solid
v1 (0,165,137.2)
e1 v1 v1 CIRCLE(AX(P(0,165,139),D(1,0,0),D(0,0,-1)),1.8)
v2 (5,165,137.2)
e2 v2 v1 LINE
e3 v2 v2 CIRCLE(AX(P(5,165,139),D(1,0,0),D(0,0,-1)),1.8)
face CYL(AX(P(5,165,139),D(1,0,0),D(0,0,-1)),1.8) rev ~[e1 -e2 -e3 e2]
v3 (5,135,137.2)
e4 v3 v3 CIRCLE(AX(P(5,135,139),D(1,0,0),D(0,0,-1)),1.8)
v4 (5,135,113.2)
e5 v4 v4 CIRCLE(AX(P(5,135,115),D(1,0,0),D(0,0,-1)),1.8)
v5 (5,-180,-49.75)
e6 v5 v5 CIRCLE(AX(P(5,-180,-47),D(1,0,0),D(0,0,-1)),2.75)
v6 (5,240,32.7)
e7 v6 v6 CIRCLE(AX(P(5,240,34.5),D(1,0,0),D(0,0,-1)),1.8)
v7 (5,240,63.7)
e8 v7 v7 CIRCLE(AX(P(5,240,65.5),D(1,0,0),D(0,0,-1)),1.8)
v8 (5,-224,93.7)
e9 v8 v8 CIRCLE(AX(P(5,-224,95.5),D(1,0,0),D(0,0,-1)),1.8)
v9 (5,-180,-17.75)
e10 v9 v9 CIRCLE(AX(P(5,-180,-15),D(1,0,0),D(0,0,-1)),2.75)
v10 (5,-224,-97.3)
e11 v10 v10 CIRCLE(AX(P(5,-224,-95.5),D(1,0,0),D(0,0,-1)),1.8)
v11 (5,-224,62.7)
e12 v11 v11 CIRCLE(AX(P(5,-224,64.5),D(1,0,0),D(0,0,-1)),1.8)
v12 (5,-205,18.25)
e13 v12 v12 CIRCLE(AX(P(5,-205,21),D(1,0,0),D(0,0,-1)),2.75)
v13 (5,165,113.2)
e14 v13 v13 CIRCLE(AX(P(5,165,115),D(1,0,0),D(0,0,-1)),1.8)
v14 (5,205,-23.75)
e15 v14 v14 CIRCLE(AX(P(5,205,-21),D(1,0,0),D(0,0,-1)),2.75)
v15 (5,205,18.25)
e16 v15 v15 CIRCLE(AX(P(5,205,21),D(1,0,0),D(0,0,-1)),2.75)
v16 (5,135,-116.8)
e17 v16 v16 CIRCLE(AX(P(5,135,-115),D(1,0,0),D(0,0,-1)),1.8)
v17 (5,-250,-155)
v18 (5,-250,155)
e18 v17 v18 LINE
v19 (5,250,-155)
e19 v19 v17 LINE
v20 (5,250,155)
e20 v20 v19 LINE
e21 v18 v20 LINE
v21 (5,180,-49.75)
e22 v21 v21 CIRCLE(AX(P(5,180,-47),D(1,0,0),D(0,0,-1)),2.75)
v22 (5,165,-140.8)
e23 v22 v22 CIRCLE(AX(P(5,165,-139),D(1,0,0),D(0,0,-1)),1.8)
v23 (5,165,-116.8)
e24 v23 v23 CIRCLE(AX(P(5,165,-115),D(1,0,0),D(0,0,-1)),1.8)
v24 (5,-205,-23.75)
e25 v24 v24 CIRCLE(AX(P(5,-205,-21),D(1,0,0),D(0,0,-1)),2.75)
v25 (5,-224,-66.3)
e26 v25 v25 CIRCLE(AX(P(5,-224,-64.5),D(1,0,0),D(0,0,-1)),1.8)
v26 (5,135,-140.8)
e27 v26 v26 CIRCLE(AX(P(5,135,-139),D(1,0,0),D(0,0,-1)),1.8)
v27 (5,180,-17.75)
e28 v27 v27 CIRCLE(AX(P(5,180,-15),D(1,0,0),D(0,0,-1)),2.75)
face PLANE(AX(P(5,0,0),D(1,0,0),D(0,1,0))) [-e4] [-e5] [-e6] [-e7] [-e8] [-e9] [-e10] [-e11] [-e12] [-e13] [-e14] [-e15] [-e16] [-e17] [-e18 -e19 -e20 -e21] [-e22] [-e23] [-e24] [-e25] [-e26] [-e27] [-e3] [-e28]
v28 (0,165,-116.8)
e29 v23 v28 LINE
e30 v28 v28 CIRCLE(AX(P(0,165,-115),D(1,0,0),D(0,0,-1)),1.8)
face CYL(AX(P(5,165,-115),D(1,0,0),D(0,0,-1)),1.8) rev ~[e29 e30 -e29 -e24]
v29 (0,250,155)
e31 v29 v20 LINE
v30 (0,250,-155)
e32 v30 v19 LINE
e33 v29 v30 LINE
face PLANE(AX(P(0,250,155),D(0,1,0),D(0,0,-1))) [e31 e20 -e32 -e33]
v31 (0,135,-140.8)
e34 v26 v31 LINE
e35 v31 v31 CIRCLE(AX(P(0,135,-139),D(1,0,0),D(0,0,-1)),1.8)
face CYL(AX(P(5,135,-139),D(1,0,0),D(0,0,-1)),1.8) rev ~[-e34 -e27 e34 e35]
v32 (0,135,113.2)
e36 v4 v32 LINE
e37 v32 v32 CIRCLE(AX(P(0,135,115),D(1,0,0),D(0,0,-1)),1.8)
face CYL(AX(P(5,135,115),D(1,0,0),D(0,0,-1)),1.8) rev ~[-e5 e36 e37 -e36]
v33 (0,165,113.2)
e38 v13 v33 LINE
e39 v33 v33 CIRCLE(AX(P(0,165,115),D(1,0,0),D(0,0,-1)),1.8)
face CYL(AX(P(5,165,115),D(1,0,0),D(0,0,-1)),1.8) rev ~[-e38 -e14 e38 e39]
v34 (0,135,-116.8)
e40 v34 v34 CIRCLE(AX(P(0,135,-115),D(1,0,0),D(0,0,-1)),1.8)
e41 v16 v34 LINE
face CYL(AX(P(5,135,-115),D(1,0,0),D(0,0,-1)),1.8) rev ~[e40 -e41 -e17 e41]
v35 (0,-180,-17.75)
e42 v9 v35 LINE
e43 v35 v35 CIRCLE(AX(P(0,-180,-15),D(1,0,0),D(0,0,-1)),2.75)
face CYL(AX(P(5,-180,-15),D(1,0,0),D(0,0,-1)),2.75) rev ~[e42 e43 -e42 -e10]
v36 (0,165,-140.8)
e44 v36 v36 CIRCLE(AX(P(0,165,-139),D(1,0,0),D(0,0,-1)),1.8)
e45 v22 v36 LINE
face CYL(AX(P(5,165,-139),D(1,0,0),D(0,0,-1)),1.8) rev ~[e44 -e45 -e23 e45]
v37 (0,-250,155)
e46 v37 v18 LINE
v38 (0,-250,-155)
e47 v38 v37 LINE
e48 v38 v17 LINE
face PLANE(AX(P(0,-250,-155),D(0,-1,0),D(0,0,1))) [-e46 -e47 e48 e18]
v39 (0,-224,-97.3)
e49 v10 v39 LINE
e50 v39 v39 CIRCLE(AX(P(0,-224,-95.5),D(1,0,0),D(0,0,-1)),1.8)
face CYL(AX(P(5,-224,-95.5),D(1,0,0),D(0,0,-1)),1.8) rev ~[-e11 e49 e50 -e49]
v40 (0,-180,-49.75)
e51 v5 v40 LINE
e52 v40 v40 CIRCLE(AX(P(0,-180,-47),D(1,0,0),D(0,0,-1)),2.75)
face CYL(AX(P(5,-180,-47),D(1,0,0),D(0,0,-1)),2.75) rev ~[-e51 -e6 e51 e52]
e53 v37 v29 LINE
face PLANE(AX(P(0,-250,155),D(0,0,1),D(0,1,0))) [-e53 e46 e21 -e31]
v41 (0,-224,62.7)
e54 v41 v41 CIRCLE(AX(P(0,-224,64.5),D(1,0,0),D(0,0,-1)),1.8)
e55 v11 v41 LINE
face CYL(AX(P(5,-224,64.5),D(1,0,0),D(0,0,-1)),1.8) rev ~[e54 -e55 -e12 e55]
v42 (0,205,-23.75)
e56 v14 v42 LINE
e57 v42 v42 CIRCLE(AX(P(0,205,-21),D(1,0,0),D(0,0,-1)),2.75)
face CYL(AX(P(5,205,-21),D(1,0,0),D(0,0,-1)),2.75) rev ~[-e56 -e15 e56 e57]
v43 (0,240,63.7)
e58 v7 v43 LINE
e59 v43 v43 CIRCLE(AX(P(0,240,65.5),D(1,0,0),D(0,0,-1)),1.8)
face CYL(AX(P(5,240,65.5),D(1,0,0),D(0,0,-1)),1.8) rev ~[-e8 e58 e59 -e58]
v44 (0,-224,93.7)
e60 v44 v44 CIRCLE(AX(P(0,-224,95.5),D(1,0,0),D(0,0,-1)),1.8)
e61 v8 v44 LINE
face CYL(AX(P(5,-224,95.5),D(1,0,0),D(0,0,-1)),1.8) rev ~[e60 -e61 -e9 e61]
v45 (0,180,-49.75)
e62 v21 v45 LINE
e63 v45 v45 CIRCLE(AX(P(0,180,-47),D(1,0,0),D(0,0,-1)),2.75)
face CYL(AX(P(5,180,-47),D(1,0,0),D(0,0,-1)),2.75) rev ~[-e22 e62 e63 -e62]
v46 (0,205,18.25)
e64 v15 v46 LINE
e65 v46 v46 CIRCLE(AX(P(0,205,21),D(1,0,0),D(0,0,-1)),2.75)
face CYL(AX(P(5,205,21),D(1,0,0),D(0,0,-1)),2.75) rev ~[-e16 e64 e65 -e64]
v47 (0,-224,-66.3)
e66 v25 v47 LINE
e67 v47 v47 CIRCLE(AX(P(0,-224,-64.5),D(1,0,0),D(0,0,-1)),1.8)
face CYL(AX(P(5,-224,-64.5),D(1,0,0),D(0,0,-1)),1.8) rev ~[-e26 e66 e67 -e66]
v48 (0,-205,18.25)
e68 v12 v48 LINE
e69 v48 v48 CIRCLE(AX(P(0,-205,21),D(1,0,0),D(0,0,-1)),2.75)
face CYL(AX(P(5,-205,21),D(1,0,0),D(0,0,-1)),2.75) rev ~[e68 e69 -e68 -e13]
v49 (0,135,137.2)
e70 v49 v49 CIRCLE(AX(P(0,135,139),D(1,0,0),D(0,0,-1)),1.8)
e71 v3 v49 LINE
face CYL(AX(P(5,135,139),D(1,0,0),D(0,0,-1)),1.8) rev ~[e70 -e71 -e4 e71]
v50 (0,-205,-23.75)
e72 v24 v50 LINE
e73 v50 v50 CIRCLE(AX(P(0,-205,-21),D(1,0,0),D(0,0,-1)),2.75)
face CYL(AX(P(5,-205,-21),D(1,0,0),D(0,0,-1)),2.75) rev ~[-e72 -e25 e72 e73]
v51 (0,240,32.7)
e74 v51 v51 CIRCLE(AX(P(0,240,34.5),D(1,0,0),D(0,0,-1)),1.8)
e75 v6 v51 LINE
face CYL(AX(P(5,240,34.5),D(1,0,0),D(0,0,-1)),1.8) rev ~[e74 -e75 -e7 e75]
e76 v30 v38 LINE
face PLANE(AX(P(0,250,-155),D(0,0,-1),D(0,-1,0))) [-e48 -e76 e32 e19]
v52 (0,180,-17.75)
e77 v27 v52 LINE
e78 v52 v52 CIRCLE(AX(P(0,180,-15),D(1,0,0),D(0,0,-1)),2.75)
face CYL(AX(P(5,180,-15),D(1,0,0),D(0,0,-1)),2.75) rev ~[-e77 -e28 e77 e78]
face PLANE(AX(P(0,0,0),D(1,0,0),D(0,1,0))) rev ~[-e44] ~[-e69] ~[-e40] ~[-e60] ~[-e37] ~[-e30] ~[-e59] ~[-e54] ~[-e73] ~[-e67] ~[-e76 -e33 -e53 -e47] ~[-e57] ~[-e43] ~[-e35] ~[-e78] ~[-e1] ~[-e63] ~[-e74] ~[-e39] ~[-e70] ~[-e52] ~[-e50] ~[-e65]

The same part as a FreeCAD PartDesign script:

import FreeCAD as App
import Part
import Sketcher

V = App.Vector
Q = App.Units.Quantity


def add_polygon(sketch, points):
    """Adds a closed chain of lines whose ends are joined by coincident constraints."""
    first, n = sketch.GeometryCount, len(points)
    for a, b in zip(points, points[1:] + points[:1]):
        sketch.addGeometry(Part.LineSegment(App.Vector(*a, 0), App.Vector(*b, 0)), False)
    for i in range(n):
        sketch.addConstraint(Sketcher.Constraint("Coincident", first + i, 2, first + (i + 1) % n, 1))

doc = App.newDocument("Part")
body = doc.addObject("PartDesign::Body", "Body")

# Sketch on YZ plane
sketch1 = body.newObject("Sketcher::SketchObject", "Sketch")
sketch1.AttachmentSupport = (doc.getObject("YZ_Plane"), [""])
sketch1.MapMode = "FlatFace"
add_polygon(sketch1, [(-250, -155), (250, -155), (250, 155), (-250, 155)])  # lines 0-3
sketch1.addConstraint([
    Sketcher.Constraint("Horizontal", 0),
    Sketcher.Constraint("Vertical", 1),
    Sketcher.Constraint("Horizontal", 2),
    Sketcher.Constraint("Vertical", 3),
    Sketcher.Constraint("Symmetric", 0, 2, 2, 2, -1, 1),
    Sketcher.Constraint("DistanceX", 0, 1, 0, 2, Q("500 mm")),
    Sketcher.Constraint("DistanceY", 1, 1, 1, 2, Q("310 mm")),
])
pad1 = body.newObject("PartDesign::Pad", "Pad")
pad1.Profile = sketch1
pad1.Length = 5

# Sketch on YZ plane
sketch2 = body.newObject("Sketcher::SketchObject", "Sketch001")
sketch2.AttachmentSupport = (doc.getObject("YZ_Plane"), [""])
sketch2.MapMode = "FlatFace"
sketch2.AttachmentOffset = App.Placement(V(0, 0, 5), App.Rotation())
sketch2.addGeometry(Part.Circle(V(-224, -95.5, 0), V(0, 0, 1), 1.8), False)
sketch2.addConstraint([
    Sketcher.Constraint("Diameter", 0, Q("3.6 mm")),
    Sketcher.Constraint("DistanceX", 0, 3, -1, 1, Q("224 mm")),
    Sketcher.Constraint("DistanceY", 0, 3, -1, 1, Q("95.5 mm")),
])
pocket1 = body.newObject("PartDesign::Pocket", "Pocket")
pocket1.Profile = sketch2
pocket1.Type = "ThroughAll"

# Sketch on YZ plane
sketch3 = body.newObject("Sketcher::SketchObject", "Sketch002")
sketch3.AttachmentSupport = (doc.getObject("YZ_Plane"), [""])
sketch3.MapMode = "FlatFace"
sketch3.AttachmentOffset = App.Placement(V(0, 0, 5), App.Rotation())
sketch3.addGeometry(Part.Circle(V(-224, 95.5, 0), V(0, 0, 1), 1.8), False)
sketch3.addConstraint([
    Sketcher.Constraint("Diameter", 0, Q("3.6 mm")),
    Sketcher.Constraint("DistanceX", 0, 3, -1, 1, Q("224 mm")),
    Sketcher.Constraint("DistanceY", -1, 1, 0, 3, Q("95.5 mm")),
])
pocket2 = body.newObject("PartDesign::Pocket", "Pocket001")
pocket2.Profile = sketch3
pocket2.Type = "ThroughAll"

# Sketch on YZ plane
sketch4 = body.newObject("Sketcher::SketchObject", "Sketch003")
sketch4.AttachmentSupport = (doc.getObject("YZ_Plane"), [""])
sketch4.MapMode = "FlatFace"
sketch4.AttachmentOffset = App.Placement(V(0, 0, 5), App.Rotation())
sketch4.addGeometry(Part.Circle(V(-224, -64.5, 0), V(0, 0, 1), 1.8), False)
sketch4.addConstraint([
    Sketcher.Constraint("Diameter", 0, Q("3.6 mm")),
    Sketcher.Constraint("DistanceX", 0, 3, -1, 1, Q("224 mm")),
    Sketcher.Constraint("DistanceY", 0, 3, -1, 1, Q("64.5 mm")),
])
pocket3 = body.newObject("PartDesign::Pocket", "Pocket002")
pocket3.Profile = sketch4
pocket3.Type = "ThroughAll"

# Sketch on YZ plane
sketch5 = body.newObject("Sketcher::SketchObject", "Sketch004")
sketch5.AttachmentSupport = (doc.getObject("YZ_Plane"), [""])
sketch5.MapMode = "FlatFace"
sketch5.AttachmentOffset = App.Placement(V(0, 0, 5), App.Rotation())
sketch5.addGeometry(Part.Circle(V(-224, 64.5, 0), V(0, 0, 1), 1.8), False)
sketch5.addConstraint([
    Sketcher.Constraint("Diameter", 0, Q("3.6 mm")),
    Sketcher.Constraint("DistanceX", 0, 3, -1, 1, Q("224 mm")),
    Sketcher.Constraint("DistanceY", -1, 1, 0, 3, Q("64.5 mm")),
])
pocket4 = body.newObject("PartDesign::Pocket", "Pocket003")
pocket4.Profile = sketch5
pocket4.Type = "ThroughAll"

# Sketch on YZ plane
sketch6 = body.newObject("Sketcher::SketchObject", "Sketch005")
sketch6.AttachmentSupport = (doc.getObject("YZ_Plane"), [""])
sketch6.MapMode = "FlatFace"
sketch6.AttachmentOffset = App.Placement(V(0, 0, 5), App.Rotation())
sketch6.addGeometry(Part.Circle(V(-205, -21, 0), V(0, 0, 1), 2.75), False)
sketch6.addConstraint([
    Sketcher.Constraint("Diameter", 0, Q("5.5 mm")),
    Sketcher.Constraint("DistanceX", 0, 3, -1, 1, Q("205 mm")),
    Sketcher.Constraint("DistanceY", 0, 3, -1, 1, Q("21 mm")),
])
pocket5 = body.newObject("PartDesign::Pocket", "Pocket004")
pocket5.Profile = sketch6
pocket5.Type = "ThroughAll"

# Sketch on YZ plane
sketch7 = body.newObject("Sketcher::SketchObject", "Sketch006")
sketch7.AttachmentSupport = (doc.getObject("YZ_Plane"), [""])
sketch7.MapMode = "FlatFace"
sketch7.AttachmentOffset = App.Placement(V(0, 0, 5), App.Rotation())
sketch7.addGeometry(Part.Circle(V(-205, 21, 0), V(0, 0, 1), 2.75), False)
sketch7.addConstraint([
    Sketcher.Constraint("Diameter", 0, Q("5.5 mm")),
    Sketcher.Constraint("DistanceX", 0, 3, -1, 1, Q("205 mm")),
    Sketcher.Constraint("DistanceY", -1, 1, 0, 3, Q("21 mm")),
])
pocket6 = body.newObject("PartDesign::Pocket", "Pocket005")
pocket6.Profile = sketch7
pocket6.Type = "ThroughAll"

# Sketch on YZ plane
sketch8 = body.newObject("Sketcher::SketchObject", "Sketch007")
sketch8.AttachmentSupport = (doc.getObject("YZ_Plane"), [""])
sketch8.MapMode = "FlatFace"
sketch8.AttachmentOffset = App.Placement(V(0, 0, 5), App.Rotation())
sketch8.addGeometry(Part.Circle(V(205, -21, 0), V(0, 0, 1), 2.75), False)
sketch8.addConstraint([
    Sketcher.Constraint("Diameter", 0, Q("5.5 mm")),
    Sketcher.Constraint("DistanceX", -1, 1, 0, 3, Q("205 mm")),
    Sketcher.Constraint("DistanceY", 0, 3, -1, 1, Q("21 mm")),
])
pocket7 = body.newObject("PartDesign::Pocket", "Pocket006")
pocket7.Profile = sketch8
pocket7.Type = "ThroughAll"

# Sketch on YZ plane
sketch9 = body.newObject("Sketcher::SketchObject", "Sketch008")
sketch9.AttachmentSupport = (doc.getObject("YZ_Plane"), [""])
sketch9.MapMode = "FlatFace"
sketch9.AttachmentOffset = App.Placement(V(0, 0, 5), App.Rotation())
sketch9.addGeometry(Part.Circle(V(205, 21, 0), V(0, 0, 1), 2.75), False)
sketch9.addConstraint([
    Sketcher.Constraint("Diameter", 0, Q("5.5 mm")),
    Sketcher.Constraint("DistanceX", -1, 1, 0, 3, Q("205 mm")),
    Sketcher.Constraint("DistanceY", -1, 1, 0, 3, Q("21 mm")),
])
pocket8 = body.newObject("PartDesign::Pocket", "Pocket007")
pocket8.Profile = sketch9
pocket8.Type = "ThroughAll"

# Sketch on YZ plane
sketch10 = body.newObject("Sketcher::SketchObject", "Sketch009")
sketch10.AttachmentSupport = (doc.getObject("YZ_Plane"), [""])
sketch10.MapMode = "FlatFace"
sketch10.AttachmentOffset = App.Placement(V(0, 0, 5), App.Rotation())
sketch10.addGeometry(Part.Circle(V(180, -15, 0), V(0, 0, 1), 2.75), False)
sketch10.addConstraint([
    Sketcher.Constraint("Diameter", 0, Q("5.5 mm")),
    Sketcher.Constraint("DistanceX", -1, 1, 0, 3, Q("180 mm")),
    Sketcher.Constraint("DistanceY", 0, 3, -1, 1, Q("15 mm")),
])
pocket9 = body.newObject("PartDesign::Pocket", "Pocket008")
pocket9.Profile = sketch10
pocket9.Type = "ThroughAll"

# Sketch on YZ plane
sketch11 = body.newObject("Sketcher::SketchObject", "Sketch010")
sketch11.AttachmentSupport = (doc.getObject("YZ_Plane"), [""])
sketch11.MapMode = "FlatFace"
sketch11.AttachmentOffset = App.Placement(V(0, 0, 5), App.Rotation())
sketch11.addGeometry(Part.Circle(V(-180, -15, 0), V(0, 0, 1), 2.75), False)
sketch11.addConstraint([
    Sketcher.Constraint("Diameter", 0, Q("5.5 mm")),
    Sketcher.Constraint("DistanceX", 0, 3, -1, 1, Q("180 mm")),
    Sketcher.Constraint("DistanceY", 0, 3, -1, 1, Q("15 mm")),
])
pocket10 = body.newObject("PartDesign::Pocket", "Pocket009")
pocket10.Profile = sketch11
pocket10.Type = "ThroughAll"

# Sketch on YZ plane
sketch12 = body.newObject("Sketcher::SketchObject", "Sketch011")
sketch12.AttachmentSupport = (doc.getObject("YZ_Plane"), [""])
sketch12.MapMode = "FlatFace"
sketch12.AttachmentOffset = App.Placement(V(0, 0, 5), App.Rotation())
sketch12.addGeometry(Part.Circle(V(180, -47, 0), V(0, 0, 1), 2.75), False)
sketch12.addConstraint([
    Sketcher.Constraint("Diameter", 0, Q("5.5 mm")),
    Sketcher.Constraint("DistanceX", -1, 1, 0, 3, Q("180 mm")),
    Sketcher.Constraint("DistanceY", 0, 3, -1, 1, Q("47 mm")),
])
pocket11 = body.newObject("PartDesign::Pocket", "Pocket010")
pocket11.Profile = sketch12
pocket11.Type = "ThroughAll"

# Sketch on YZ plane
sketch13 = body.newObject("Sketcher::SketchObject", "Sketch012")
sketch13.AttachmentSupport = (doc.getObject("YZ_Plane"), [""])
sketch13.MapMode = "FlatFace"
sketch13.AttachmentOffset = App.Placement(V(0, 0, 5), App.Rotation())
sketch13.addGeometry(Part.Circle(V(-180, -47, 0), V(0, 0, 1), 2.75), False)
sketch13.addConstraint([
    Sketcher.Constraint("Diameter", 0, Q("5.5 mm")),
    Sketcher.Constraint("DistanceX", 0, 3, -1, 1, Q("180 mm")),
    Sketcher.Constraint("DistanceY", 0, 3, -1, 1, Q("47 mm")),
])
pocket12 = body.newObject("PartDesign::Pocket", "Pocket011")
pocket12.Profile = sketch13
pocket12.Type = "ThroughAll"

# Sketch on YZ plane
sketch14 = body.newObject("Sketcher::SketchObject", "Sketch013")
sketch14.AttachmentSupport = (doc.getObject("YZ_Plane"), [""])
sketch14.MapMode = "FlatFace"
sketch14.AttachmentOffset = App.Placement(V(0, 0, 5), App.Rotation())
sketch14.addGeometry(Part.Circle(V(165, -139, 0), V(0, 0, 1), 1.8), False)
sketch14.addConstraint([
    Sketcher.Constraint("Diameter", 0, Q("3.6 mm")),
    Sketcher.Constraint("DistanceX", -1, 1, 0, 3, Q("165 mm")),
    Sketcher.Constraint("DistanceY", 0, 3, -1, 1, Q("139 mm")),
])
pocket13 = body.newObject("PartDesign::Pocket", "Pocket012")
pocket13.Profile = sketch14
pocket13.Type = "ThroughAll"

# Sketch on YZ plane
sketch15 = body.newObject("Sketcher::SketchObject", "Sketch014")
sketch15.AttachmentSupport = (doc.getObject("YZ_Plane"), [""])
sketch15.MapMode = "FlatFace"
sketch15.AttachmentOffset = App.Placement(V(0, 0, 5), App.Rotation())
sketch15.addGeometry(Part.Circle(V(165, 139, 0), V(0, 0, 1), 1.8), False)
sketch15.addConstraint([
    Sketcher.Constraint("Diameter", 0, Q("3.6 mm")),
    Sketcher.Constraint("DistanceX", -1, 1, 0, 3, Q("165 mm")),
    Sketcher.Constraint("DistanceY", -1, 1, 0, 3, Q("139 mm")),
])
pocket14 = body.newObject("PartDesign::Pocket", "Pocket013")
pocket14.Profile = sketch15
pocket14.Type = "ThroughAll"

# Sketch on YZ plane
sketch16 = body.newObject("Sketcher::SketchObject", "Sketch015")
sketch16.AttachmentSupport = (doc.getObject("YZ_Plane"), [""])
sketch16.MapMode = "FlatFace"
sketch16.AttachmentOffset = App.Placement(V(0, 0, 5), App.Rotation())
sketch16.addGeometry(Part.Circle(V(135, -139, 0), V(0, 0, 1), 1.8), False)
sketch16.addConstraint([
    Sketcher.Constraint("Diameter", 0, Q("3.6 mm")),
    Sketcher.Constraint("DistanceX", -1, 1, 0, 3, Q("135 mm")),
    Sketcher.Constraint("DistanceY", 0, 3, -1, 1, Q("139 mm")),
])
pocket15 = body.newObject("PartDesign::Pocket", "Pocket014")
pocket15.Profile = sketch16
pocket15.Type = "ThroughAll"

# Sketch on YZ plane
sketch17 = body.newObject("Sketcher::SketchObject", "Sketch016")
sketch17.AttachmentSupport = (doc.getObject("YZ_Plane"), [""])
sketch17.MapMode = "FlatFace"
sketch17.AttachmentOffset = App.Placement(V(0, 0, 5), App.Rotation())
sketch17.addGeometry(Part.Circle(V(135, 139, 0), V(0, 0, 1), 1.8), False)
sketch17.addConstraint([
    Sketcher.Constraint("Diameter", 0, Q("3.6 mm")),
    Sketcher.Constraint("DistanceX", -1, 1, 0, 3, Q("135 mm")),
    Sketcher.Constraint("DistanceY", -1, 1, 0, 3, Q("139 mm")),
])
pocket16 = body.newObject("PartDesign::Pocket", "Pocket015")
pocket16.Profile = sketch17
pocket16.Type = "ThroughAll"

# Sketch on YZ plane
sketch18 = body.newObject("Sketcher::SketchObject", "Sketch017")
sketch18.AttachmentSupport = (doc.getObject("YZ_Plane"), [""])
sketch18.MapMode = "FlatFace"
sketch18.AttachmentOffset = App.Placement(V(0, 0, 5), App.Rotation())
sketch18.addGeometry(Part.Circle(V(165, -115, 0), V(0, 0, 1), 1.8), False)
sketch18.addConstraint([
    Sketcher.Constraint("Diameter", 0, Q("3.6 mm")),
    Sketcher.Constraint("DistanceX", -1, 1, 0, 3, Q("165 mm")),
    Sketcher.Constraint("DistanceY", 0, 3, -1, 1, Q("115 mm")),
])
pocket17 = body.newObject("PartDesign::Pocket", "Pocket016")
pocket17.Profile = sketch18
pocket17.Type = "ThroughAll"

# Sketch on YZ plane
sketch19 = body.newObject("Sketcher::SketchObject", "Sketch018")
sketch19.AttachmentSupport = (doc.getObject("YZ_Plane"), [""])
sketch19.MapMode = "FlatFace"
sketch19.AttachmentOffset = App.Placement(V(0, 0, 5), App.Rotation())
sketch19.addGeometry(Part.Circle(V(135, -115, 0), V(0, 0, 1), 1.8), False)
sketch19.addConstraint([
    Sketcher.Constraint("Diameter", 0, Q("3.6 mm")),
    Sketcher.Constraint("DistanceX", -1, 1, 0, 3, Q("135 mm")),
    Sketcher.Constraint("DistanceY", 0, 3, -1, 1, Q("115 mm")),
])
pocket18 = body.newObject("PartDesign::Pocket", "Pocket017")
pocket18.Profile = sketch19
pocket18.Type = "ThroughAll"

# Sketch on YZ plane
sketch20 = body.newObject("Sketcher::SketchObject", "Sketch019")
sketch20.AttachmentSupport = (doc.getObject("YZ_Plane"), [""])
sketch20.MapMode = "FlatFace"
sketch20.AttachmentOffset = App.Placement(V(0, 0, 5), App.Rotation())
sketch20.addGeometry(Part.Circle(V(135, 115, 0), V(0, 0, 1), 1.8), False)
sketch20.addConstraint([
    Sketcher.Constraint("Diameter", 0, Q("3.6 mm")),
    Sketcher.Constraint("DistanceX", -1, 1, 0, 3, Q("135 mm")),
    Sketcher.Constraint("DistanceY", -1, 1, 0, 3, Q("115 mm")),
])
pocket19 = body.newObject("PartDesign::Pocket", "Pocket018")
pocket19.Profile = sketch20
pocket19.Type = "ThroughAll"

# Sketch on YZ plane
sketch21 = body.newObject("Sketcher::SketchObject", "Sketch020")
sketch21.AttachmentSupport = (doc.getObject("YZ_Plane"), [""])
sketch21.MapMode = "FlatFace"
sketch21.AttachmentOffset = App.Placement(V(0, 0, 5), App.Rotation())
sketch21.addGeometry(Part.Circle(V(165, 115, 0), V(0, 0, 1), 1.8), False)
sketch21.addConstraint([
    Sketcher.Constraint("Diameter", 0, Q("3.6 mm")),
    Sketcher.Constraint("DistanceX", -1, 1, 0, 3, Q("165 mm")),
    Sketcher.Constraint("DistanceY", -1, 1, 0, 3, Q("115 mm")),
])
pocket20 = body.newObject("PartDesign::Pocket", "Pocket019")
pocket20.Profile = sketch21
pocket20.Type = "ThroughAll"

# Sketch on YZ plane
sketch22 = body.newObject("Sketcher::SketchObject", "Sketch021")
sketch22.AttachmentSupport = (doc.getObject("YZ_Plane"), [""])
sketch22.MapMode = "FlatFace"
sketch22.AttachmentOffset = App.Placement(V(0, 0, 5), App.Rotation())
sketch22.addGeometry(Part.Circle(V(240, 65.5, 0), V(0, 0, 1), 1.8), False)
sketch22.addConstraint([
    Sketcher.Constraint("Diameter", 0, Q("3.6 mm")),
    Sketcher.Constraint("DistanceX", -1, 1, 0, 3, Q("240 mm")),
    Sketcher.Constraint("DistanceY", -1, 1, 0, 3, Q("65.5 mm")),
])
pocket21 = body.newObject("PartDesign::Pocket", "Pocket020")
pocket21.Profile = sketch22
pocket21.Type = "ThroughAll"

# Sketch on YZ plane
sketch23 = body.newObject("Sketcher::SketchObject", "Sketch022")
sketch23.AttachmentSupport = (doc.getObject("YZ_Plane"), [""])
sketch23.MapMode = "FlatFace"
sketch23.AttachmentOffset = App.Placement(V(0, 0, 5), App.Rotation())
sketch23.addGeometry(Part.Circle(V(240, 34.5, 0), V(0, 0, 1), 1.8), False)
sketch23.addConstraint([
    Sketcher.Constraint("Diameter", 0, Q("3.6 mm")),
    Sketcher.Constraint("DistanceX", -1, 1, 0, 3, Q("240 mm")),
    Sketcher.Constraint("DistanceY", -1, 1, 0, 3, Q("34.5 mm")),
])
pocket22 = body.newObject("PartDesign::Pocket", "Pocket021")
pocket22.Profile = sketch23
pocket22.Type = "ThroughAll"

doc.recompute()
